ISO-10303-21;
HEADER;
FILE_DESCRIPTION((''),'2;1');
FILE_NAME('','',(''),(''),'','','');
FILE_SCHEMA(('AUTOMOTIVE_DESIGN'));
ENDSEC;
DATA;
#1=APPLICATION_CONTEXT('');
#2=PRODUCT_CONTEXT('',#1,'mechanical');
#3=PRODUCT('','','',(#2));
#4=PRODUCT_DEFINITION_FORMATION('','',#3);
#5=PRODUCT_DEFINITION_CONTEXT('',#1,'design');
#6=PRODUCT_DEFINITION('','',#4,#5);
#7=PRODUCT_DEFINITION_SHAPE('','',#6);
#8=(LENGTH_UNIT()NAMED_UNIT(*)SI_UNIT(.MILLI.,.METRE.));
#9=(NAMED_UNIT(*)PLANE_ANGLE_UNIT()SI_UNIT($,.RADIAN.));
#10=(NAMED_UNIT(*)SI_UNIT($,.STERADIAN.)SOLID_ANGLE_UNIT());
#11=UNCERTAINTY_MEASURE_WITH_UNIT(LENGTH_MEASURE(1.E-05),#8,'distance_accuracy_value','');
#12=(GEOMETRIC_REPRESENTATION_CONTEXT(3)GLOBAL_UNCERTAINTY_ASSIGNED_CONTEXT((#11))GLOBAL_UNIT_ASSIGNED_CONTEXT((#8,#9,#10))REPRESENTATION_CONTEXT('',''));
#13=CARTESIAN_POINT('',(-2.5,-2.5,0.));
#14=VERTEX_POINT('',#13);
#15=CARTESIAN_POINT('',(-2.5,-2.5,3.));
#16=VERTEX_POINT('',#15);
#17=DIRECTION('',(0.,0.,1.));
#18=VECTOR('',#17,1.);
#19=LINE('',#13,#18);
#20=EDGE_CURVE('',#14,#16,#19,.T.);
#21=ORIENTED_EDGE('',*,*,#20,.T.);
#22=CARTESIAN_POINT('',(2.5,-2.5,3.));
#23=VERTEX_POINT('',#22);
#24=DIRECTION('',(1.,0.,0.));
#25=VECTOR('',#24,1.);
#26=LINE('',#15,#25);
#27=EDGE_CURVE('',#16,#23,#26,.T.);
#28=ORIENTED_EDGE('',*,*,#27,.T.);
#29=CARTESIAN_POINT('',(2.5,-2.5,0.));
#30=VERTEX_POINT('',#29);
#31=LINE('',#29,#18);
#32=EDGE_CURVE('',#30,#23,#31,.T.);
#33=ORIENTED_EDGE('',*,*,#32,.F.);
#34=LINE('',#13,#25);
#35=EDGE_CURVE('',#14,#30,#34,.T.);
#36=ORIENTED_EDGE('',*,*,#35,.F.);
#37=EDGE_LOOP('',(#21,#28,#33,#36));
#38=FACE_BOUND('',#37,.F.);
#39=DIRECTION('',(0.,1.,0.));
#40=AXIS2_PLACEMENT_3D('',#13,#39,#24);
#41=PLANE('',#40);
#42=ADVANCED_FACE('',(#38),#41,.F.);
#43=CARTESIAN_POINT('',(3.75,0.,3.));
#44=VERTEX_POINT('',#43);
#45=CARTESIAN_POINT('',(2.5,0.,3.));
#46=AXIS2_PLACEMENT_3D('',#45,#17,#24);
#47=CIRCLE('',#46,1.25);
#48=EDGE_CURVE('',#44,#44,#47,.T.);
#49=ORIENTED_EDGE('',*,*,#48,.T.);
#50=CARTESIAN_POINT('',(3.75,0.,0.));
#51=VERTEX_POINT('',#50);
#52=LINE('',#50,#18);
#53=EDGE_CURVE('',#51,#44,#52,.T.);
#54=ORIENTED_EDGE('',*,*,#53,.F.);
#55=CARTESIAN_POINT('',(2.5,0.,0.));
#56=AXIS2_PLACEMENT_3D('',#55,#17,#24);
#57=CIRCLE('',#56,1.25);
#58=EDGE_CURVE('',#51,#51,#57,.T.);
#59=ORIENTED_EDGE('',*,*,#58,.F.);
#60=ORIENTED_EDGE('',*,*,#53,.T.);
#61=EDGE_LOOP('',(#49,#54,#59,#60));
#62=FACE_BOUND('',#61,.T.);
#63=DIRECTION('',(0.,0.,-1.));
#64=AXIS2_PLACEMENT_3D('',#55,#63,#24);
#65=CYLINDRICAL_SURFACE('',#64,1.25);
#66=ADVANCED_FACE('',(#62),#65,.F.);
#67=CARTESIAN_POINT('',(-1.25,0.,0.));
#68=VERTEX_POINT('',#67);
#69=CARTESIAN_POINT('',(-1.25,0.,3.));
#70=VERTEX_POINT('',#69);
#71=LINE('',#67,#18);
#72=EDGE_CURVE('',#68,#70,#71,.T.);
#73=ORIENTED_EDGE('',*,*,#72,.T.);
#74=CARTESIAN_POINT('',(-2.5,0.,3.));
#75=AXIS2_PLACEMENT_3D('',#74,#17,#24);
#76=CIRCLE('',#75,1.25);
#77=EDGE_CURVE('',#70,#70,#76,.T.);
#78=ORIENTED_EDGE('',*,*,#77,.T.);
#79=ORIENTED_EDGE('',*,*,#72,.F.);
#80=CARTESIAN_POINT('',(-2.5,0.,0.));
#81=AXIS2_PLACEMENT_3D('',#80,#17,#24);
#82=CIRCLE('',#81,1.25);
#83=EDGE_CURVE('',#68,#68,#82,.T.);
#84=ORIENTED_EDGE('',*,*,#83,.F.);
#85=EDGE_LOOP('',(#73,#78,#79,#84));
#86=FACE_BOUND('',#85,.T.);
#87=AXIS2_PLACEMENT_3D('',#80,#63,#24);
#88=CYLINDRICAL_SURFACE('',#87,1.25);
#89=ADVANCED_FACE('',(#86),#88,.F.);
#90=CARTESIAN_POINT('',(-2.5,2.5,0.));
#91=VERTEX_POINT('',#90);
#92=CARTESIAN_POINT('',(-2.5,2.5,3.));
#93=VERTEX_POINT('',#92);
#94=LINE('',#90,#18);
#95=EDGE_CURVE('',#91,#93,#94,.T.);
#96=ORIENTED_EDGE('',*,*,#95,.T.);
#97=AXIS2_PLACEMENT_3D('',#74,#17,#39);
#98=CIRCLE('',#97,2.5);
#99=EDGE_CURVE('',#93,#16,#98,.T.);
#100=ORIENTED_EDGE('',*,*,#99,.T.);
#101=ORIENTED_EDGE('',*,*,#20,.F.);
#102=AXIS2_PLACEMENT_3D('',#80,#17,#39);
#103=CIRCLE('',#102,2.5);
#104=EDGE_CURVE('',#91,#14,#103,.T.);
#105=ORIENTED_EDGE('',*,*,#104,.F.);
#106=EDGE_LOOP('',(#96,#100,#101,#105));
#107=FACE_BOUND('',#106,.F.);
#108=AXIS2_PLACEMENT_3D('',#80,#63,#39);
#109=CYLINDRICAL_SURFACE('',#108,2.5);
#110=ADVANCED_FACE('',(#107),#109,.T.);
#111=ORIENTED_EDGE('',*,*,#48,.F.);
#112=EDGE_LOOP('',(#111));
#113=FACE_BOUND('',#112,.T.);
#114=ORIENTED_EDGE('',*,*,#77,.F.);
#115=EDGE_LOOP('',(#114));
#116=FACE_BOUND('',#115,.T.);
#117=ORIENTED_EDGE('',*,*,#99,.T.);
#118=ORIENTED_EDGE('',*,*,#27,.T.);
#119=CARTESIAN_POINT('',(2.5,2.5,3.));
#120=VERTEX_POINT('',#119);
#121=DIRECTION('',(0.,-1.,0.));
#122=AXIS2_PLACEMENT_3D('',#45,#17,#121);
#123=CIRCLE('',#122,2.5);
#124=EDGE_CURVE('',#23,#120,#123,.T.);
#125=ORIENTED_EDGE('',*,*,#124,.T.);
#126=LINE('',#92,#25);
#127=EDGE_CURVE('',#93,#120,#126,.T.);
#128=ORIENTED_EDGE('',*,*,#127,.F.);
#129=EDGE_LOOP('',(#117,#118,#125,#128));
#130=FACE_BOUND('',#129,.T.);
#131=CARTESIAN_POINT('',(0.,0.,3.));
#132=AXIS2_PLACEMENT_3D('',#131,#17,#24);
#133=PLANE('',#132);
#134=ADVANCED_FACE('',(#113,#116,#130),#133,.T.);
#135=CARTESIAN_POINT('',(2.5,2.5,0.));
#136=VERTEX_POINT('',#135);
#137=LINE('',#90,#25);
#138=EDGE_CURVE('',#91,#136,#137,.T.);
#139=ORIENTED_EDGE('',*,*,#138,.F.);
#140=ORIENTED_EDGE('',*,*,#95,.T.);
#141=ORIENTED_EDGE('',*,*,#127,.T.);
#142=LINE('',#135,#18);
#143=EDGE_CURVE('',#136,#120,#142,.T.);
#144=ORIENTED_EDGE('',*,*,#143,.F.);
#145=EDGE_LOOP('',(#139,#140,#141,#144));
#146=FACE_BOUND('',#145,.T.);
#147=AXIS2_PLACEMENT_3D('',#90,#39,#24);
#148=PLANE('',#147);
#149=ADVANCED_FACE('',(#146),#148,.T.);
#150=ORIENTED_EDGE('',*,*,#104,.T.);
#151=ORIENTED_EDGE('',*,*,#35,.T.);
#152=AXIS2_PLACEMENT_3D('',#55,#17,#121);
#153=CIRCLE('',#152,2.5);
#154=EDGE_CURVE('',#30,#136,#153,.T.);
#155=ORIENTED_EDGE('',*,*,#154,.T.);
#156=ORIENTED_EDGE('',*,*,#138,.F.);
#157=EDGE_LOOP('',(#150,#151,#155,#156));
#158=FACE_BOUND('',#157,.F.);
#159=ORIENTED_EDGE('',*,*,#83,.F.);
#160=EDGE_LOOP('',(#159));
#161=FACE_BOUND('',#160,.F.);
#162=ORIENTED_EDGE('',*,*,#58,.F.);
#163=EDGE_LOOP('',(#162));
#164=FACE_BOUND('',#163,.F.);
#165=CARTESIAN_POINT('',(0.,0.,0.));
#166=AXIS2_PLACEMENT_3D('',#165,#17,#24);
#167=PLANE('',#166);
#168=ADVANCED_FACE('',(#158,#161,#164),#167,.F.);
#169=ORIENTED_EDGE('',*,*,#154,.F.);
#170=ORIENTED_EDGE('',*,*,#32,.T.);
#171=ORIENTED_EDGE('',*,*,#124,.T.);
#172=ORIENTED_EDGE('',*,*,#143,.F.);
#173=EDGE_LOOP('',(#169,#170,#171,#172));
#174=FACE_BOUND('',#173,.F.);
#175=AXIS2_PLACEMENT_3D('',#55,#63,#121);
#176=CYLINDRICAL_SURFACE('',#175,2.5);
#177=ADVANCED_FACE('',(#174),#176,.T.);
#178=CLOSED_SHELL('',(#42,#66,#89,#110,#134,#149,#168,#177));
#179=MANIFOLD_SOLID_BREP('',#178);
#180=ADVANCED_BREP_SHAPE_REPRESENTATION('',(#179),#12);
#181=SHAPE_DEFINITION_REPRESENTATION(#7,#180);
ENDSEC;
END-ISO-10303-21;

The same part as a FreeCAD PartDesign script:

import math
import FreeCAD as App
import Part
import Sketcher

V = App.Vector

doc = App.newDocument("Part")
body = doc.addObject("PartDesign::Body", "Body")

# Sketch on XY plane
sketch1 = doc.addObject("Sketcher::SketchObject", "Sketch")
body.addObject(sketch1)
sketch1.AttachmentSupport = (doc.XY_Plane, [""])
sketch1.MapMode = "FlatFace"
sketch1.addGeometry(Part.ArcOfCircle(Part.Circle(V(-2.5, 0, 0), V(0, 0, 1), 2.5), math.radians(90), math.radians(270)), False)
sketch1.addGeometry(Part.LineSegment(V(-2.5, -2.5, 0), V(2.5, -2.5, 0)), False)
sketch1.addGeometry(Part.ArcOfCircle(Part.Circle(V(2.5, 0, 0), V(0, 0, 1), 2.5), math.radians(-90), math.radians(90)), False)
sketch1.addGeometry(Part.LineSegment(V(2.5, 2.5, 0), V(-2.5, 2.5, 0)), False)
sketch1.addGeometry(Part.Circle(V(-2.5, 0, 0), V(0, 0, 1), 1.2), False)
sketch1.addGeometry(Part.Circle(V(2.5, 0, 0), V(0, 0, 1), 1.2), False)
sketch1.addConstraint(Sketcher.Constraint("Tangent", 0, 2, 1, 1))
sketch1.addConstraint(Sketcher.Constraint("Tangent", 1, 2, 2, 1))
sketch1.addConstraint(Sketcher.Constraint("Tangent", 2, 2, 3, 1))
sketch1.addConstraint(Sketcher.Constraint("Tangent", 3, 2, 0, 1))
sketch1.addConstraint(Sketcher.Constraint("Horizontal", 1))
sketch1.addConstraint(Sketcher.Constraint("Horizontal", 3))
sketch1.addConstraint(Sketcher.Constraint("Coincident", 4, 3, 0, 3))
sketch1.addConstraint(Sketcher.Constraint("Coincident", 5, 3, 2, 3))
sketch1.addConstraint(Sketcher.Constraint("Equal", 4, 5))
sketch1.addConstraint(Sketcher.Constraint("Symmetric", 0, 3, 2, 3, -1, 1))
sketch1.addConstraint(Sketcher.Constraint("Diameter", 4, 2.5))
sketch1.addConstraint(Sketcher.Constraint("Radius", 0, 2.5))
sketch1.addConstraint(Sketcher.Constraint("DistanceX", 1, 1, 1, 2, 5.0))
pad1 = doc.addObject("PartDesign::Pad", "Pad")
body.addObject(pad1)
pad1.Profile = sketch1
pad1.Length = 3

doc.recompute()
